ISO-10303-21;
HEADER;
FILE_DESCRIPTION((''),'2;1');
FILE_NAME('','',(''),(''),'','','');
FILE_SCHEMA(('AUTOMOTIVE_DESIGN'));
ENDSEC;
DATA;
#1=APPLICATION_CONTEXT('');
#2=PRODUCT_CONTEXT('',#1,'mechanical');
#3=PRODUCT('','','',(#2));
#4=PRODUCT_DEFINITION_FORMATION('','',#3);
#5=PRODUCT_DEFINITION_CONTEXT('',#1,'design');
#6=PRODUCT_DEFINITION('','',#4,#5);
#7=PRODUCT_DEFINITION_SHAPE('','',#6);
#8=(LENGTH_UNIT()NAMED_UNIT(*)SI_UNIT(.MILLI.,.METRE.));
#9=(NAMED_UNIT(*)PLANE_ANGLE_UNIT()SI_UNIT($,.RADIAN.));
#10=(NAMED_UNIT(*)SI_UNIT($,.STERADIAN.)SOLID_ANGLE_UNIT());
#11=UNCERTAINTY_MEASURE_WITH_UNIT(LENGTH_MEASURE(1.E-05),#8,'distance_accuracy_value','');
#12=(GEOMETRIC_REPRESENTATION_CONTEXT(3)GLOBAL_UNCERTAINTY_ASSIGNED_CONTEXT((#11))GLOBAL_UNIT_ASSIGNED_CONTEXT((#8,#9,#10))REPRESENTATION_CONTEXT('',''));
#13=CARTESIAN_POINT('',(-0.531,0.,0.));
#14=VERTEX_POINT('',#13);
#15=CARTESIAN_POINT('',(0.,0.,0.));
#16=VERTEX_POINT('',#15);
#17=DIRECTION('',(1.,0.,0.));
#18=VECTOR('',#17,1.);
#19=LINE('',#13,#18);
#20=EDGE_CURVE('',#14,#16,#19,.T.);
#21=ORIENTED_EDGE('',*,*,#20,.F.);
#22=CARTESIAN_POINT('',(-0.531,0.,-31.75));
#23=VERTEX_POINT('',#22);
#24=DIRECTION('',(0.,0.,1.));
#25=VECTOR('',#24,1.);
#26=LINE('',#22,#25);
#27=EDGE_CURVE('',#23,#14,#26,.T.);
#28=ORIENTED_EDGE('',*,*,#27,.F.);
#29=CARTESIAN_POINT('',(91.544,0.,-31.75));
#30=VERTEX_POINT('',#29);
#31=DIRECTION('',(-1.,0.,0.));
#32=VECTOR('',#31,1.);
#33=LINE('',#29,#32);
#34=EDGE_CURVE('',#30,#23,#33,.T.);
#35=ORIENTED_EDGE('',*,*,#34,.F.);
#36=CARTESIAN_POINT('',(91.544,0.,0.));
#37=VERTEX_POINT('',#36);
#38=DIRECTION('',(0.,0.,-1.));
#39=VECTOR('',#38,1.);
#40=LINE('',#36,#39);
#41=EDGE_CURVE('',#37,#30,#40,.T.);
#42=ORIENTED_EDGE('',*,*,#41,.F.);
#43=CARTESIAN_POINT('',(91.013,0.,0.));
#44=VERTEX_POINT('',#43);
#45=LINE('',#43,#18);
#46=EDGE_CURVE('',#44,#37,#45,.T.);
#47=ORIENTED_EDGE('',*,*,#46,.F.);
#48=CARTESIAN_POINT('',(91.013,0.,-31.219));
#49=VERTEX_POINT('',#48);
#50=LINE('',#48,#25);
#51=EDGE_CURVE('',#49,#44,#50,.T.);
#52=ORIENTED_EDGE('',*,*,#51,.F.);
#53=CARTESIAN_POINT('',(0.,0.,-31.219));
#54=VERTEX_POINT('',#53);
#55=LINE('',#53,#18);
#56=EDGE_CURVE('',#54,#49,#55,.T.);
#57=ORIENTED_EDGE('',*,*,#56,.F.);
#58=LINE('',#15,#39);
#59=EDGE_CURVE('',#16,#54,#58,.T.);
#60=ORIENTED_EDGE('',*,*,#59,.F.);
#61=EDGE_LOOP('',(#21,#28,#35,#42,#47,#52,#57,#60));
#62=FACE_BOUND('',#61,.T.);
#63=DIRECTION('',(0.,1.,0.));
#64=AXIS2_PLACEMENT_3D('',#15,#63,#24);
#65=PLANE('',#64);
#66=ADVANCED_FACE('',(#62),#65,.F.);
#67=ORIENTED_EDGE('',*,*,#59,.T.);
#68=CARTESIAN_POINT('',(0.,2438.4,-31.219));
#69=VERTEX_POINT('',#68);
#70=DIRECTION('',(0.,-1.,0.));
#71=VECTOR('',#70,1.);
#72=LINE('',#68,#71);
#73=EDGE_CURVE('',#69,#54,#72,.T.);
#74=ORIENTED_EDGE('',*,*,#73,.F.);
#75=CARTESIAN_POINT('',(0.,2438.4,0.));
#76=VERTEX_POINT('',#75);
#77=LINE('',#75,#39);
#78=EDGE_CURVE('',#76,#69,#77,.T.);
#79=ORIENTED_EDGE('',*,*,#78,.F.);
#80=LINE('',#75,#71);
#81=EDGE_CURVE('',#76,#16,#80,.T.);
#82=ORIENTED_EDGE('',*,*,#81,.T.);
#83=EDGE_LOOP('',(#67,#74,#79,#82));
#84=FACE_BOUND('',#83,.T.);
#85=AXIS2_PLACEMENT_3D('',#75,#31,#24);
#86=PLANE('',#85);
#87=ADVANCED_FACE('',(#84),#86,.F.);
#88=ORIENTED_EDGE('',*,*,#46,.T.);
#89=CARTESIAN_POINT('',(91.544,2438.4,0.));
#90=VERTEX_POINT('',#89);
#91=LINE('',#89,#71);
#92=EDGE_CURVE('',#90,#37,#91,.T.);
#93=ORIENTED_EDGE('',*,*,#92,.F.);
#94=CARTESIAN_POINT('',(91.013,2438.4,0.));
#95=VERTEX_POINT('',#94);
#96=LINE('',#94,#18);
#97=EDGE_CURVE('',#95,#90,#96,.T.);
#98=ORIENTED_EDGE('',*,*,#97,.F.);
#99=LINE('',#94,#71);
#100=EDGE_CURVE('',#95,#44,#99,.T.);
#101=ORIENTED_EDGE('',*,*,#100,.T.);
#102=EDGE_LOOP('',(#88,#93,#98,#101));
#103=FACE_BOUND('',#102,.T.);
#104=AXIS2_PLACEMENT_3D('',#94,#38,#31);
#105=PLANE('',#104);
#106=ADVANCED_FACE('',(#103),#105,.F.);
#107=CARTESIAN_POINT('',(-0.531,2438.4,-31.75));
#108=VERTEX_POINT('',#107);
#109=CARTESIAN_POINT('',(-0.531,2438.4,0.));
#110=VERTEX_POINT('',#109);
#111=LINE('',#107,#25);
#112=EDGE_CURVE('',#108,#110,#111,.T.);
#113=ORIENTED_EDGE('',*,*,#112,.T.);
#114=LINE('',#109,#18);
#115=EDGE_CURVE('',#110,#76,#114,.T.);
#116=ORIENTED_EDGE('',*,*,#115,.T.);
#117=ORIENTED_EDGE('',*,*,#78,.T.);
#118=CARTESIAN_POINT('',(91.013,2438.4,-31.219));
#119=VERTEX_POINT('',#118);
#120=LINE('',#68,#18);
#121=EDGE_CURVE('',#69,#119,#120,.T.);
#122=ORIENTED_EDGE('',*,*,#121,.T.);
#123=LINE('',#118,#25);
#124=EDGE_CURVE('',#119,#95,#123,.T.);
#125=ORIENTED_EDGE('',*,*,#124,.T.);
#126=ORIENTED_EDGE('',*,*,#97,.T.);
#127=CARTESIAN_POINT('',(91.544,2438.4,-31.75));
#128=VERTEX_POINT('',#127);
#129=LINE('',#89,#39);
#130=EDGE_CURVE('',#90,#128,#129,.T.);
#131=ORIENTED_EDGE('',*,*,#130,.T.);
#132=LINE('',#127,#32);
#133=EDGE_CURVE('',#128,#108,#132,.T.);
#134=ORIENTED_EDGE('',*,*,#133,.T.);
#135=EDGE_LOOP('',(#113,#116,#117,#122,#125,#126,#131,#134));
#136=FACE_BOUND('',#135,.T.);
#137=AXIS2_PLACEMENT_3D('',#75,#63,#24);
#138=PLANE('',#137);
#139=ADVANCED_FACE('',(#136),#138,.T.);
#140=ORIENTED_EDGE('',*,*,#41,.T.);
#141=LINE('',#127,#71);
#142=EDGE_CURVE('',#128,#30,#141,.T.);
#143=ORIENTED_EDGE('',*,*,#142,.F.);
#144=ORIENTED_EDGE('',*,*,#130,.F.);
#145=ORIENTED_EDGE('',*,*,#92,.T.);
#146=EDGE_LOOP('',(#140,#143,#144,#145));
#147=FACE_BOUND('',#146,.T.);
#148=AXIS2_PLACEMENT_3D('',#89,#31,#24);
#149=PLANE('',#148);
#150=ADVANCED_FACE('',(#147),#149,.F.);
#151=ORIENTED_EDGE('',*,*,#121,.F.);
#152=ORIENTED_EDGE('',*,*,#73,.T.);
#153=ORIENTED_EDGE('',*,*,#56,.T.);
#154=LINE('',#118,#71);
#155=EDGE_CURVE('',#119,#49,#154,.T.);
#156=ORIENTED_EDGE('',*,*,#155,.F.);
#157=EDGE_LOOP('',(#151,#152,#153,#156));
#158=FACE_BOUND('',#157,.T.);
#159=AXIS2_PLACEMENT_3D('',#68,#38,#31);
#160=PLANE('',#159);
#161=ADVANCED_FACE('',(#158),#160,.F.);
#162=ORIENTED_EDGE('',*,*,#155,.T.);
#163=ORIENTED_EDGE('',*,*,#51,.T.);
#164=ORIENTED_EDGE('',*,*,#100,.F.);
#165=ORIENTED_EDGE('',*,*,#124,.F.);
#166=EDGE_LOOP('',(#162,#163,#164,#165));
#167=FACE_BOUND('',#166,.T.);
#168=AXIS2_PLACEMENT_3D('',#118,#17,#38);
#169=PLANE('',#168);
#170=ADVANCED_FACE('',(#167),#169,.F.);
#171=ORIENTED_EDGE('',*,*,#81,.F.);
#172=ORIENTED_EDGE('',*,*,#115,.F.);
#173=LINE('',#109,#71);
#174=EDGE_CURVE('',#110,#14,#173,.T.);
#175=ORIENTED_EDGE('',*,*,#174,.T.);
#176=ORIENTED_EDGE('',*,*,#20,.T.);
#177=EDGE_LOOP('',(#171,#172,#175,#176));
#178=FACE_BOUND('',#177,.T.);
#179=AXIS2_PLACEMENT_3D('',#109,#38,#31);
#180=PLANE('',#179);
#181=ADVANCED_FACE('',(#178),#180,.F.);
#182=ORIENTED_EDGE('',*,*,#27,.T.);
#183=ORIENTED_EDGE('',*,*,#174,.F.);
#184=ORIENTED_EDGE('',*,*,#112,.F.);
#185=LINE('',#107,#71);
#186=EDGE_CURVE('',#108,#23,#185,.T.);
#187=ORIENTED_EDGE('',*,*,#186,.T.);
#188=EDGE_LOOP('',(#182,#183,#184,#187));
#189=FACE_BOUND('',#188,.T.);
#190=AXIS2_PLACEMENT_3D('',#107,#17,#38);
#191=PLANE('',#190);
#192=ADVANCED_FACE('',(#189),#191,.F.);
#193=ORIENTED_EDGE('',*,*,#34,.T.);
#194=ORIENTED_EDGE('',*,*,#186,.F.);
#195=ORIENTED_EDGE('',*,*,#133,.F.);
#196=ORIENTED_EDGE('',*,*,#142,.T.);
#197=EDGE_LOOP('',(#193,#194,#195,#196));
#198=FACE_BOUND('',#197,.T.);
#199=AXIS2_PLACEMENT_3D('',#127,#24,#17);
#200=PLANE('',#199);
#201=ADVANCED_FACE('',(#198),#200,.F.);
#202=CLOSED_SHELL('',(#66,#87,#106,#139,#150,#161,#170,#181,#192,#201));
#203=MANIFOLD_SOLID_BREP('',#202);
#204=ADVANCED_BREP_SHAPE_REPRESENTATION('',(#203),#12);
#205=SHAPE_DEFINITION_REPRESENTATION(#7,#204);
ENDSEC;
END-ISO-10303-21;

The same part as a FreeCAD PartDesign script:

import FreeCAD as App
import Part
import Sketcher
from FreeCAD import Vector
Q = App.Units.Quantity


def add_polygon(sketch, points):
    """Adds a closed chain of lines whose ends are joined by coincident constraints."""
    first, n = sketch.GeometryCount, len(points)
    for a, b in zip(points, points[1:] + points[:1]):
        sketch.addGeometry(Part.LineSegment(App.Vector(*a, 0), App.Vector(*b, 0)), False)
    for i in range(n):
        sketch.addConstraint(Sketcher.Constraint("Coincident", first + i, 2, first + (i + 1) % n, 1))

doc = App.newDocument("Part")
body = doc.addObject("PartDesign::Body", "Body")

sketch1 = body.newObject("Sketcher::SketchObject", "Sketch")
sketch1.AttachmentSupport = (doc.getObject("XZ_Plane"), [""])
sketch1.MapMode = "FlatFace"
add_polygon(sketch1, [(0, 0), (0, -31.2), (91, -31.2), (91, 0), (91.5, 0), (91.5, -31.8), (-0.5, -31.8), (-0.5, 0)])
sketch1.addConstraint(Sketcher.Constraint("Vertical", 0))
sketch1.addConstraint(Sketcher.Constraint("Horizontal", 1))
sketch1.addConstraint(Sketcher.Constraint("Vertical", 2))
sketch1.addConstraint(Sketcher.Constraint("Horizontal", 3))
sketch1.addConstraint(Sketcher.Constraint("Vertical", 4))
sketch1.addConstraint(Sketcher.Constraint("Horizontal", 5))
sketch1.addConstraint(Sketcher.Constraint("Vertical", 6))
sketch1.addConstraint(Sketcher.Constraint("Horizontal", 7))
sketch1.addConstraint(Sketcher.Constraint("Coincident", 7, 2, -1, 1))
sketch1.addConstraint(Sketcher.Constraint("PointOnObject", 2, 2, -1))
sketch1.addConstraint(Sketcher.Constraint("Equal", 3, 7))
sketch1.addConstraint(Sketcher.Constraint("DistanceY", 4, 2, 4, 1, Q("1.25 in")))
sketch1.addConstraint(Sketcher.Constraint("DistanceX", 5, 2, 5, 1, Q("3.625 in")))
sketch1.addConstraint(Sketcher.Constraint("DistanceX", 1, 1, 1, 2, Q("91.013 mm")))
sketch1.addConstraint(Sketcher.Constraint("DistanceY", 0, 2, 0, 1, Q("31.219 mm")))
pad1 = body.newObject("PartDesign::Pad", "Pad")
pad1.Profile = sketch1
pad1.Length = Q("96 in")
pad1.Reversed = True

doc.recompute()
